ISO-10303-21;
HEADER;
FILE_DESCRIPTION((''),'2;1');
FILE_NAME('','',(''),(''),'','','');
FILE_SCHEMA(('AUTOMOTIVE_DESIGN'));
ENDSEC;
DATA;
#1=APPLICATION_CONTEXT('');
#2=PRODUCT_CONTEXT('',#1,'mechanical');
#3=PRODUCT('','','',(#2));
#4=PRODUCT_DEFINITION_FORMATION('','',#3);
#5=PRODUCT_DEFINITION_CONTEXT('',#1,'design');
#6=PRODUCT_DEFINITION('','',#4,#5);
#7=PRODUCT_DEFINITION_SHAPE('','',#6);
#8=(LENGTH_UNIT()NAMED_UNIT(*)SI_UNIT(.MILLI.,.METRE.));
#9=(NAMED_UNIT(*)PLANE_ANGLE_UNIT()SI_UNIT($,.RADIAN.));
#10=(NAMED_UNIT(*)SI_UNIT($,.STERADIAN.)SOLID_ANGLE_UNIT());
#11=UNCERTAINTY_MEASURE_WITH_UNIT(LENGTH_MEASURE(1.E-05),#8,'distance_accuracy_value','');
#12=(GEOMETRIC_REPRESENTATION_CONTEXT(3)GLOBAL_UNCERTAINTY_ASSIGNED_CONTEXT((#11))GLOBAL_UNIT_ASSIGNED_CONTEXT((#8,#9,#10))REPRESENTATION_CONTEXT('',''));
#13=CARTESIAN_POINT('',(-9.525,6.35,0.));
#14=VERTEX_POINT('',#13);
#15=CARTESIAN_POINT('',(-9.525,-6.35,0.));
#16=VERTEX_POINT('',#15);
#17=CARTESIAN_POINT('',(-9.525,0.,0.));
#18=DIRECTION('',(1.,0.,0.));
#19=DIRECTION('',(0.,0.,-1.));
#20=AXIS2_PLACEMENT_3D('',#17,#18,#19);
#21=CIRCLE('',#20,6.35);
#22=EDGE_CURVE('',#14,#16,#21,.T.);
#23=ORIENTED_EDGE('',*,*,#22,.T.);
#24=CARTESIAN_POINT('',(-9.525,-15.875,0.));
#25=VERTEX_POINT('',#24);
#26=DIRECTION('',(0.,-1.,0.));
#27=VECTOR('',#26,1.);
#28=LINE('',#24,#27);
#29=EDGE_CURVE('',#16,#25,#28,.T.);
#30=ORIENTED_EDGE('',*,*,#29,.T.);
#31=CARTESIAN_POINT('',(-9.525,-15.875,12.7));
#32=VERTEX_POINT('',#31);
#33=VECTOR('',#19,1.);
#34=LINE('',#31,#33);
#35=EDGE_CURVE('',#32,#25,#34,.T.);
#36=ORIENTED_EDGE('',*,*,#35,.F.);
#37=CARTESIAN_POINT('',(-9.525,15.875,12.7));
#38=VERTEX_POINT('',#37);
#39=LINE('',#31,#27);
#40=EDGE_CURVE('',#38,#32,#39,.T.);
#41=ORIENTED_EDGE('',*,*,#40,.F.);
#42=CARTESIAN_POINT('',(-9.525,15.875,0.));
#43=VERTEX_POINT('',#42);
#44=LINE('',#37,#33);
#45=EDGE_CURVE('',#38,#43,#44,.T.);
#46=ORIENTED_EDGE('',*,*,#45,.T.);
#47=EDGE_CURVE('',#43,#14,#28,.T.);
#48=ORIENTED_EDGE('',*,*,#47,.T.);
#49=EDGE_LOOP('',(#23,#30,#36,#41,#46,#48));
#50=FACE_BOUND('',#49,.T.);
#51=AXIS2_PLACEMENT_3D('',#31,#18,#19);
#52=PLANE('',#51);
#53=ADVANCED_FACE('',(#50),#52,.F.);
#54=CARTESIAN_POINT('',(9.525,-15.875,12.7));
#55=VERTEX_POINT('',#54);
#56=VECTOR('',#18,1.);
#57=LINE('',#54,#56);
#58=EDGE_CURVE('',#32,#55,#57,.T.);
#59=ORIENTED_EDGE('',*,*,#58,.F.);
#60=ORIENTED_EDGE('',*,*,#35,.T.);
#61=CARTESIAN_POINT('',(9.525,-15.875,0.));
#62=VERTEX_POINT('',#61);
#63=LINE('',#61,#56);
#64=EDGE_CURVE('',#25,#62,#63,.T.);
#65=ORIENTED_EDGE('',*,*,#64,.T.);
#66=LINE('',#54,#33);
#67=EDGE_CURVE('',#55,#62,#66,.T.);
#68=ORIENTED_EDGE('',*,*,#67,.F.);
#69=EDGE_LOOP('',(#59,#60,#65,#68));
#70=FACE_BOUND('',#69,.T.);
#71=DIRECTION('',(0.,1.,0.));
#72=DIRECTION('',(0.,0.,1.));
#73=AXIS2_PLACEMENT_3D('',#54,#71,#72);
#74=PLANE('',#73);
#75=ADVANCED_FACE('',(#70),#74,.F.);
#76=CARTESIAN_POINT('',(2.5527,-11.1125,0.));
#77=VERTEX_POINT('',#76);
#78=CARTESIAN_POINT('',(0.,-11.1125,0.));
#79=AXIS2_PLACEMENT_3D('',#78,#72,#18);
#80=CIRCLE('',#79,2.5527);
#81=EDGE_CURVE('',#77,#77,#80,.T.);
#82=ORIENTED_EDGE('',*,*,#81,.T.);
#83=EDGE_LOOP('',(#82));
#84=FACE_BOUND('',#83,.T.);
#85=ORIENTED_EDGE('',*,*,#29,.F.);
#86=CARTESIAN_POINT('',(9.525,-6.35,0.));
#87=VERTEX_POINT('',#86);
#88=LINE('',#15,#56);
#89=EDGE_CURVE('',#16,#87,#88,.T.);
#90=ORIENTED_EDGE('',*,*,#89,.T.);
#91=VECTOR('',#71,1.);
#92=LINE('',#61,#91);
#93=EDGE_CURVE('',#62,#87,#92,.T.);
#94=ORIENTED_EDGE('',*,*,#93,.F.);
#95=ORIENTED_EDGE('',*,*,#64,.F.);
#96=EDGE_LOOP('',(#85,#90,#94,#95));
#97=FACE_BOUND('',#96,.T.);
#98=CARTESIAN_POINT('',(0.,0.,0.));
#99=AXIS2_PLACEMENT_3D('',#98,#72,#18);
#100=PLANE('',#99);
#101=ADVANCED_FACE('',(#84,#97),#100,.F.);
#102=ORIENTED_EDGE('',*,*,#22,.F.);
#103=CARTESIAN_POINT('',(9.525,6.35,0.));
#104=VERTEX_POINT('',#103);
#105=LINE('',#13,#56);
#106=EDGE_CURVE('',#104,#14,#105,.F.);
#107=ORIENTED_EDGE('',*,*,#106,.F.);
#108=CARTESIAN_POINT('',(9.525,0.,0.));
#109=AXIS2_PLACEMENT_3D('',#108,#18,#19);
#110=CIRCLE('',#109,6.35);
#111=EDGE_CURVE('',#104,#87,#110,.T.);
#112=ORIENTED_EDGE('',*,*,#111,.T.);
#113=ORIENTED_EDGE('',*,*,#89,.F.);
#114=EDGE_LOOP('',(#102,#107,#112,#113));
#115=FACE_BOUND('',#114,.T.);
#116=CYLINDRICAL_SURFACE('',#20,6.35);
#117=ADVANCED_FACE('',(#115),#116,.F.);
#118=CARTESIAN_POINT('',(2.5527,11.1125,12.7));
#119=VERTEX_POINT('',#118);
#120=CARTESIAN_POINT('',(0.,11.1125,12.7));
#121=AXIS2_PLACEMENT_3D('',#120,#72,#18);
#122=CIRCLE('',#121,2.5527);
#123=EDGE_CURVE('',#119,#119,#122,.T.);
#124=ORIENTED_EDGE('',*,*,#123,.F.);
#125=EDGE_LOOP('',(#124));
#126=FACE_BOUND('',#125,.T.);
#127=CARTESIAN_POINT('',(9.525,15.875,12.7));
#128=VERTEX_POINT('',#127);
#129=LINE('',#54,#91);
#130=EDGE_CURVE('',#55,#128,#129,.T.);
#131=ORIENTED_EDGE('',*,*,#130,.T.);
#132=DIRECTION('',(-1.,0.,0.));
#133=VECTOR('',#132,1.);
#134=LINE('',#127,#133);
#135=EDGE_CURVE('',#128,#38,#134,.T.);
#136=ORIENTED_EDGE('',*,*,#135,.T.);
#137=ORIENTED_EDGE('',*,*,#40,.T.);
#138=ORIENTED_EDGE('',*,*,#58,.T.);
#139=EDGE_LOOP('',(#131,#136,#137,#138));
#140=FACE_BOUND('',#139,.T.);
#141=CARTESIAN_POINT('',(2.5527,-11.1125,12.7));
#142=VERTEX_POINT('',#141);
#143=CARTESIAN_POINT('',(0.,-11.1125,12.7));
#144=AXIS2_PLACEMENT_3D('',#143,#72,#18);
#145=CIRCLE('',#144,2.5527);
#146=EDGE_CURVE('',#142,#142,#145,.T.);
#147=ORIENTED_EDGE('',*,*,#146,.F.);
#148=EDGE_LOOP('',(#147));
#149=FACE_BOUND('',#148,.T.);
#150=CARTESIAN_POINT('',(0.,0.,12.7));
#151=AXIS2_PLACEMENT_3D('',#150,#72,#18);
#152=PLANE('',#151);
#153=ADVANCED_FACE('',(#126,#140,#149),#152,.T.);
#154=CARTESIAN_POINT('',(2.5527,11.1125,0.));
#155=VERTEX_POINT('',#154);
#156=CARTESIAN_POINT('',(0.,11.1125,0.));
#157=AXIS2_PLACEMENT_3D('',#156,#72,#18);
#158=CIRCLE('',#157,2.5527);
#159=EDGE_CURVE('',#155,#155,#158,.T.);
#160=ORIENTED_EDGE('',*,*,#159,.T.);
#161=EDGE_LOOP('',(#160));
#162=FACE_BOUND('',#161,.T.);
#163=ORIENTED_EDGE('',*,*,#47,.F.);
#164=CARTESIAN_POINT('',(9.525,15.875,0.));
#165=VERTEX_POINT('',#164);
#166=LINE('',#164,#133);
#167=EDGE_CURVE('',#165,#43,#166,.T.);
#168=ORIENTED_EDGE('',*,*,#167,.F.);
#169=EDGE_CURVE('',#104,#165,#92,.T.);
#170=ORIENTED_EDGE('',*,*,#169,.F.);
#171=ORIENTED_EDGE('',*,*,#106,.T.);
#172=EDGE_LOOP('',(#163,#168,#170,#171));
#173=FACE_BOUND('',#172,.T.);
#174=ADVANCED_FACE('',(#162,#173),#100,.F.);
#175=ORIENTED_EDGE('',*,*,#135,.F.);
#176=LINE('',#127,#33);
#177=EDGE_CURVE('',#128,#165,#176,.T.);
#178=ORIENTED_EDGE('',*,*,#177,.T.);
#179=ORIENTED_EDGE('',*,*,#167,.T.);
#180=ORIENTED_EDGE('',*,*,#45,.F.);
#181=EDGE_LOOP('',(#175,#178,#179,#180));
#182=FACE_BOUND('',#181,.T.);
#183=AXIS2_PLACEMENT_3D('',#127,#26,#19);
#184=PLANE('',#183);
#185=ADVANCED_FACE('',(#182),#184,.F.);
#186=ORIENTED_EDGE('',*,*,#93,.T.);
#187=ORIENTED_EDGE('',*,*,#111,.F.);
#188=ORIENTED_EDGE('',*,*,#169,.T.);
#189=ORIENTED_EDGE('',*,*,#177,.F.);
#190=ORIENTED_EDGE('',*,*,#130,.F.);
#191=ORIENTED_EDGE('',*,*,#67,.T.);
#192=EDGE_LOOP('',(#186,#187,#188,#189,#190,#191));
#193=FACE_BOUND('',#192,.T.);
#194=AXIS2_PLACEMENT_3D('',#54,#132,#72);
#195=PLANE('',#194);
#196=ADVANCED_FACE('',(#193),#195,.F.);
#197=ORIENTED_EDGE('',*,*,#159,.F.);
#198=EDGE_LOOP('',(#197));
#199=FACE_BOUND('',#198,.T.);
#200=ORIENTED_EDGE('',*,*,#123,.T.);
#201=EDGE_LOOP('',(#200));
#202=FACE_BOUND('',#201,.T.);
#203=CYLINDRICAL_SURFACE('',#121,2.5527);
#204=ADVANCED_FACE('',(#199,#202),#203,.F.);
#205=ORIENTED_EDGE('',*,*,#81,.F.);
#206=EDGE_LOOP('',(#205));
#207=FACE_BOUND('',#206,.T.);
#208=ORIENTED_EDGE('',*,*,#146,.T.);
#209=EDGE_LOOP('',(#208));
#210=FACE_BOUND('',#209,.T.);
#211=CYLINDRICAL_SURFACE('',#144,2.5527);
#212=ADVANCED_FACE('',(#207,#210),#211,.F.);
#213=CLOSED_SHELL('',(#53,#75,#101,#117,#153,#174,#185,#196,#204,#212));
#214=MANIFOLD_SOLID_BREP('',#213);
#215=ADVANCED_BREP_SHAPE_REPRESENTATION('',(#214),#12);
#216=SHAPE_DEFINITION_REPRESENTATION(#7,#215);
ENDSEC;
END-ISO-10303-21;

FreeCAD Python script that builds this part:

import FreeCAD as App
import Part
import Sketcher
Q = App.Units.Quantity


def add_polygon(sketch, points):
    """Adds a closed chain of lines whose ends are joined by coincident constraints."""
    first, n = sketch.GeometryCount, len(points)
    for a, b in zip(points, points[1:] + points[:1]):
        sketch.addGeometry(Part.LineSegment(App.Vector(*a, 0), App.Vector(*b, 0)), False)
    for i in range(n):
        sketch.addConstraint(Sketcher.Constraint("Coincident", first + i, 2, first + (i + 1) % n, 1))

doc = App.newDocument("Part")
body = doc.addObject("PartDesign::Body", "Body")

sketch1 = body.newObject("Sketcher::SketchObject", "Sketch")
sketch1.AttachmentSupport = (doc.getObject("XY_Plane"), [""])
sketch1.MapMode = "FlatFace"
add_polygon(sketch1, [(-10, 16), (-10, -16), (10, -16), (10, 16)])
sketch1.addConstraint([
    Sketcher.Constraint("Vertical", 0),
    Sketcher.Constraint("Horizontal", 1),
    Sketcher.Constraint("Vertical", 2),
    Sketcher.Constraint("Horizontal", 3),
    Sketcher.Constraint("Symmetric", 0, 2, 2, 2, -1, 1),
    Sketcher.Constraint("DistanceX", 1, 1, 1, 2, Q("0.75 in")),
    Sketcher.Constraint("DistanceY", 0, 2, 0, 1, Q("1.25 in")),
])
pad1 = body.newObject("PartDesign::Pad", "Pad")
pad1.Profile = sketch1
pad1.Length = Q("0.5 in")

sketch2 = body.newObject("Sketcher::SketchObject", "Sketch001")
sketch2.AttachmentSupport = (doc.getObject("YZ_Plane"), [""])
sketch2.MapMode = "FlatFace"
sketch2.AttachmentOffset = App.Placement(App.Vector(0, 0, 0.375 * 25.4), App.Rotation())
sketch2.addGeometry(Part.Circle(App.Vector(0, 0, 0), App.Vector(0, 0, 1), 6), False)
sketch2.addConstraint([
    Sketcher.Constraint("Coincident", 0, 3, -1, 1),
    Sketcher.Constraint("Diameter", 0, Q("0.5 in")),
])
pocket1 = body.newObject("PartDesign::Pocket", "Pocket")
pocket1.Profile = sketch2
pocket1.Type = "ThroughAll"

sketch3 = body.newObject("Sketcher::SketchObject", "Sketch002")
sketch3.AttachmentSupport = (doc.getObject("XY_Plane"), [""])
sketch3.MapMode = "FlatFace"
sketch3.AttachmentOffset = App.Placement(App.Vector(0, 0, 0.5 * 25.4), App.Rotation())
sketch3.addGeometry([
    Part.Circle(App.Vector(0, 11.1, 0), App.Vector(0, 0, 1), 2.6),
    Part.Circle(App.Vector(0, -11.1, 0), App.Vector(0, 0, 1), 2.6),
], False)
sketch3.addConstraint([
    Sketcher.Constraint("Equal", 0, 1),
    Sketcher.Constraint("Symmetric", 0, 3, 1, 3, -1, 1),
    Sketcher.Constraint("PointOnObject", 0, 3, -2),
    Sketcher.Constraint("Diameter", 0, Q("0.201 in")),
    Sketcher.Constraint("DistanceY", -1, 1, 0, 3, Q("0.4375 in")),
])
doc.recompute()
hole = body.newObject("PartDesign::Hole", "Hole")
hole.Profile = sketch3
hole.ThreadType = "None"
hole.Diameter = Q("0.201 in")
hole.DepthType = "ThroughAll"

doc.recompute()
